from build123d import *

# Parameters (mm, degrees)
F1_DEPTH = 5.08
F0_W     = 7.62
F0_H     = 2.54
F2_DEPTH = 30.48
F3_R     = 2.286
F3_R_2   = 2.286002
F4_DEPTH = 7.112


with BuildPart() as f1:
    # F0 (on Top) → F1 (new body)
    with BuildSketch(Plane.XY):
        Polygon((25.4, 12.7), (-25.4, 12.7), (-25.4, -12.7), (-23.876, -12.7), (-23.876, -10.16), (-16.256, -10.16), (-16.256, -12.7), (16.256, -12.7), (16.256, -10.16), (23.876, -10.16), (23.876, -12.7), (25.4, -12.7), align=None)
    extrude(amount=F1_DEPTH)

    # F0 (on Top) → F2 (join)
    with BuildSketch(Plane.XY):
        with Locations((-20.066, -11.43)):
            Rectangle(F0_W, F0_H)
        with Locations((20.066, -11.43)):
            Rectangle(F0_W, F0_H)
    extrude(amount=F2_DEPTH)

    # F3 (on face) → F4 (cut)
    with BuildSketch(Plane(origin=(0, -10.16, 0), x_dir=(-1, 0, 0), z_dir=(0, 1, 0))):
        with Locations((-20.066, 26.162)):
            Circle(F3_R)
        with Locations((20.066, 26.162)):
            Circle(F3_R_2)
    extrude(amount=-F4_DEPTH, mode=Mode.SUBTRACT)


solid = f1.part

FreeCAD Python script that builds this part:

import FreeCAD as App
import Part
import Sketcher

V = App.Vector
Q = App.Units.Quantity

doc = App.newDocument("Part")
body = doc.addObject("PartDesign::Body", "Body")

# Sketch on XY plane
sketch1 = body.newObject("Sketcher::SketchObject", "Sketch")
sketch1.AttachmentSupport = (doc.getObject("XY_Plane"), [""])
sketch1.MapMode = "FlatFace"
sketch1.addGeometry(Part.LineSegment(V(25.4, 12.7, 0), V(-25.4, 12.7, 0)), False)
sketch1.addGeometry(Part.LineSegment(V(-25.4, 12.7, 0), V(-25.4, -12.7, 0)), False)
sketch1.addGeometry(Part.LineSegment(V(-25.4, -12.7, 0), V(-23.9, -12.7, 0)), False)
sketch1.addGeometry(Part.LineSegment(V(-23.9, -12.7, 0), V(-23.9, -10.2, 0)), False)
sketch1.addGeometry(Part.LineSegment(V(-23.9, -10.2, 0), V(-16.3, -10.2, 0)), False)
sketch1.addGeometry(Part.LineSegment(V(-16.3, -10.2, 0), V(-16.3, -12.7, 0)), False)
sketch1.addGeometry(Part.LineSegment(V(-16.3, -12.7, 0), V(16.3, -12.7, 0)), False)
sketch1.addGeometry(Part.LineSegment(V(16.3, -12.7, 0), V(16.3, -10.2, 0)), False)
sketch1.addGeometry(Part.LineSegment(V(16.3, -10.2, 0), V(23.9, -10.2, 0)), False)
sketch1.addGeometry(Part.LineSegment(V(23.9, -10.2, 0), V(23.9, -12.7, 0)), False)
sketch1.addGeometry(Part.LineSegment(V(23.9, -12.7, 0), V(25.4, -12.7, 0)), False)
sketch1.addGeometry(Part.LineSegment(V(25.4, -12.7, 0), V(25.4, 12.7, 0)), False)
sketch1.addConstraint(Sketcher.Constraint("Coincident", 0, 2, 1, 1))
sketch1.addConstraint(Sketcher.Constraint("Coincident", 1, 2, 2, 1))
sketch1.addConstraint(Sketcher.Constraint("Coincident", 2, 2, 3, 1))
sketch1.addConstraint(Sketcher.Constraint("Coincident", 3, 2, 4, 1))
sketch1.addConstraint(Sketcher.Constraint("Coincident", 4, 2, 5, 1))
sketch1.addConstraint(Sketcher.Constraint("Coincident", 5, 2, 6, 1))
sketch1.addConstraint(Sketcher.Constraint("Coincident", 6, 2, 7, 1))
sketch1.addConstraint(Sketcher.Constraint("Coincident", 7, 2, 8, 1))
sketch1.addConstraint(Sketcher.Constraint("Coincident", 8, 2, 9, 1))
sketch1.addConstraint(Sketcher.Constraint("Coincident", 9, 2, 10, 1))
sketch1.addConstraint(Sketcher.Constraint("Coincident", 10, 2, 11, 1))
sketch1.addConstraint(Sketcher.Constraint("Coincident", 11, 2, 0, 1))
sketch1.addConstraint(Sketcher.Constraint("Horizontal", 0))
sketch1.addConstraint(Sketcher.Constraint("Vertical", 1))
sketch1.addConstraint(Sketcher.Constraint("Horizontal", 2))
sketch1.addConstraint(Sketcher.Constraint("Vertical", 3))
sketch1.addConstraint(Sketcher.Constraint("Horizontal", 4))
sketch1.addConstraint(Sketcher.Constraint("Vertical", 5))
sketch1.addConstraint(Sketcher.Constraint("Horizontal", 6))
sketch1.addConstraint(Sketcher.Constraint("Vertical", 7))
sketch1.addConstraint(Sketcher.Constraint("Horizontal", 8))
sketch1.addConstraint(Sketcher.Constraint("Vertical", 9))
sketch1.addConstraint(Sketcher.Constraint("Horizontal", 10))
sketch1.addConstraint(Sketcher.Constraint("Vertical", 11))
sketch1.addConstraint(Sketcher.Constraint("Symmetric", 0, 2, 10, 2, -1, 1))
sketch1.addConstraint(Sketcher.Constraint("Symmetric", 4, 2, 7, 2, -2))
sketch1.addConstraint(Sketcher.Constraint("Symmetric", 2, 2, 9, 2, -2))
sketch1.addConstraint(Sketcher.Constraint("Horizontal", 2, 2, 5, 2))
sketch1.addConstraint(Sketcher.Constraint("DistanceX", 0, 2, 0, 1, Q("2 in")))
sketch1.addConstraint(Sketcher.Constraint("DistanceY", 1, 2, 1, 1, Q("1 in")))
sketch1.addConstraint(Sketcher.Constraint("DistanceX", 4, 1, 4, 2, Q("0.3 in")))
sketch1.addConstraint(Sketcher.Constraint("DistanceY", 3, 1, 3, 2, Q("0.1 in")))
sketch1.addConstraint(Sketcher.Constraint("DistanceX", 2, 1, 2, 2, Q("0.06 in")))
pad1 = body.newObject("PartDesign::Pad", "Pad")
pad1.Profile = sketch1
pad1.Length = Q("0.2 in")

# Sketch on XY plane
sketch2 = body.newObject("Sketcher::SketchObject", "Sketch001")
sketch2.AttachmentSupport = (doc.getObject("XY_Plane"), [""])
sketch2.MapMode = "FlatFace"
sketch2.addGeometry(Part.LineSegment(V(-23.9, -10.2, 0), V(-23.9, -12.7, 0)), False)
sketch2.addGeometry(Part.LineSegment(V(-23.9, -12.7, 0), V(-16.3, -12.7, 0)), False)
sketch2.addGeometry(Part.LineSegment(V(-16.3, -12.7, 0), V(-16.3, -10.2, 0)), False)
sketch2.addGeometry(Part.LineSegment(V(-16.3, -10.2, 0), V(-23.9, -10.2, 0)), False)
sketch2.addGeometry(Part.LineSegment(V(16.3, -10.2, 0), V(16.3, -12.7, 0)), False)
sketch2.addGeometry(Part.LineSegment(V(16.3, -12.7, 0), V(23.9, -12.7, 0)), False)
sketch2.addGeometry(Part.LineSegment(V(23.9, -12.7, 0), V(23.9, -10.2, 0)), False)
sketch2.addGeometry(Part.LineSegment(V(23.9, -10.2, 0), V(16.3, -10.2, 0)), False)
sketch2.addConstraint(Sketcher.Constraint("Coincident", 0, 2, 1, 1))
sketch2.addConstraint(Sketcher.Constraint("Coincident", 1, 2, 2, 1))
sketch2.addConstraint(Sketcher.Constraint("Coincident", 2, 2, 3, 1))
sketch2.addConstraint(Sketcher.Constraint("Coincident", 3, 2, 0, 1))
sketch2.addConstraint(Sketcher.Constraint("Coincident", 4, 2, 5, 1))
sketch2.addConstraint(Sketcher.Constraint("Coincident", 5, 2, 6, 1))
sketch2.addConstraint(Sketcher.Constraint("Coincident", 6, 2, 7, 1))
sketch2.addConstraint(Sketcher.Constraint("Coincident", 7, 2, 4, 1))
sketch2.addConstraint(Sketcher.Constraint("Vertical", 0))
sketch2.addConstraint(Sketcher.Constraint("Horizontal", 1))
sketch2.addConstraint(Sketcher.Constraint("Vertical", 2))
sketch2.addConstraint(Sketcher.Constraint("Horizontal", 3))
sketch2.addConstraint(Sketcher.Constraint("Vertical", 4))
sketch2.addConstraint(Sketcher.Constraint("Horizontal", 5))
sketch2.addConstraint(Sketcher.Constraint("Vertical", 6))
sketch2.addConstraint(Sketcher.Constraint("Horizontal", 7))
sketch2.addConstraint(Sketcher.Constraint("Symmetric", 1, 2, 4, 2, -2))
sketch2.addConstraint(Sketcher.Constraint("Symmetric", 3, 2, 6, 2, -2))
sketch2.addConstraint(Sketcher.Constraint("DistanceX", 1, 1, 1, 2, Q("0.3 in")))
sketch2.addConstraint(Sketcher.Constraint("DistanceY", 0, 2, 0, 1, Q("0.1 in")))
sketch2.addConstraint(Sketcher.Constraint("DistanceY", 0, 2, -1, 1, Q("0.5 in")))
sketch2.addConstraint(Sketcher.Constraint("DistanceX", 0, 2, -1, 1, Q("0.94 in")))
pad2 = body.newObject("PartDesign::Pad", "Pad001")
pad2.Profile = sketch2
pad2.Length = Q("1.2 in")

# Sketch on XZ plane
sketch3 = body.newObject("Sketcher::SketchObject", "Sketch002")
sketch3.AttachmentSupport = (doc.getObject("XZ_Plane"), [""])
sketch3.MapMode = "FlatFace"
sketch3.AttachmentOffset = App.Placement(V(0, 0, 0.4 * 25.4), App.Rotation())
sketch3.addGeometry(Part.Circle(V(20.1, 26.2, 0), V(0, 0, 1), 2.3), False)
sketch3.addGeometry(Part.Circle(V(-20.1, 26.2, 0), V(0, 0, 1), 2.3), False)
sketch3.addConstraint(Sketcher.Constraint("Equal", 0, 1))
sketch3.addConstraint(Sketcher.Constraint("Symmetric", 0, 3, 1, 3, -2))
sketch3.addConstraint(Sketcher.Constraint("Diameter", 0, Q("0.18 in")))
sketch3.addConstraint(Sketcher.Constraint("DistanceX", -1, 1, 0, 3, Q("0.79 in")))
sketch3.addConstraint(Sketcher.Constraint("DistanceY", -1, 1, 0, 3, Q("1.03 in")))
pocket1 = body.newObject("PartDesign::Pocket", "Pocket")
pocket1.Profile = sketch3
pocket1.Length = Q("0.28 in")
pocket1.Reversed = True

doc.recompute()
